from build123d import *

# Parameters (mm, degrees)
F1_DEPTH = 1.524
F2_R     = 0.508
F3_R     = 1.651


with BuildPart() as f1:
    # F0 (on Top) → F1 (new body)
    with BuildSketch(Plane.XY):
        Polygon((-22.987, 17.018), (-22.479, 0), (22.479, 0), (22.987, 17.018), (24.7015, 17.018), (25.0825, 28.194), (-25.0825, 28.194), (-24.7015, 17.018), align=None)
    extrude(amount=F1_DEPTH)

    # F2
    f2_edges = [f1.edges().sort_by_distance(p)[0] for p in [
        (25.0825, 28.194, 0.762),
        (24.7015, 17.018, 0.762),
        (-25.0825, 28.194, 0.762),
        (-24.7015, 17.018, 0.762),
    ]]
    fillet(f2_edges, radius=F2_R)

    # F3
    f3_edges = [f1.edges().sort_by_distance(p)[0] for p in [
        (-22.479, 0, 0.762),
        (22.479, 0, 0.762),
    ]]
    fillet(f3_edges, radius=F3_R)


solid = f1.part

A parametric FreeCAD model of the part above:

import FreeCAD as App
import Part
import Sketcher

V = App.Vector
Q = App.Units.Quantity


def edges_at(feature, points):
    """Names of the edges that pass closest to the given points."""
    edges = feature.Shape.Edges
    near = lambda p: min(range(len(edges)), key=lambda i: edges[i].distToShape(Part.Vertex(*p))[0])
    return sorted({f"Edge{near(p) + 1}" for p in points})


def add_polygon(sketch, points):
    """Adds a closed chain of lines whose ends are joined by coincident constraints."""
    first, n = sketch.GeometryCount, len(points)
    for a, b in zip(points, points[1:] + points[:1]):
        sketch.addGeometry(Part.LineSegment(App.Vector(*a, 0), App.Vector(*b, 0)), False)
    for i in range(n):
        sketch.addConstraint(Sketcher.Constraint("Coincident", first + i, 2, first + (i + 1) % n, 1))

doc = App.newDocument("Part")
params = doc.addObject("Spreadsheet::Sheet", "Params")
for row, (alias, value) in enumerate([
    ("sketch1_width", "1.77 in"),
    ("sketch1_width2", "1.975 in"),
    ("pad1_length", "0.06 in"),
    ("fillet_radius", "0.02 in"),
    ("fillet2_radius", "0.065 in"),
], start=1):
    params.set(f"A{row}", alias)
    params.set(f"B{row}", "=" + value)
    params.setAlias(f"B{row}", alias)

body = doc.addObject("PartDesign::Body", "Body")

# Sketch on XY plane
sketch1 = doc.addObject("Sketcher::SketchObject", "Sketch")
body.addObject(sketch1)
sketch1.AttachmentSupport = (doc.XY_Plane, [""])
sketch1.MapMode = "FlatFace"
add_polygon(sketch1, [(-23, 17), (-22.5, 0), (22.5, 0), (23, 17), (24.7, 17), (25.1, 28.2), (-25.1, 28.2), (-24.7, 17)])  # lines 0-7
sketch1.addConstraint([
    Sketcher.Constraint("Horizontal", 1),
    Sketcher.Constraint("Horizontal", 3),
    Sketcher.Constraint("Horizontal", 5),
    Sketcher.Constraint("Horizontal", 7),
    Sketcher.Constraint("Symmetric", 0, 2, 1, 2, -1, 1),
    Sketcher.Constraint("Symmetric", 3, 2, 6, 2, -2),
    Sketcher.Constraint("Equal", 3, 7),
    Sketcher.Constraint("Equal", 4, 6),
    Sketcher.Constraint("DistanceX", 1, 1, 1, 2, Q("1.77 in")),
    Sketcher.Constraint("DistanceX", 5, 2, 5, 1, Q("1.975 in")),
    Sketcher.Constraint("DistanceY", -1, 1, 2, 2, Q("0.67 in")),
    Sketcher.Constraint("DistanceY", -1, 1, 4, 2, Q("1.11 in")),
    Sketcher.Constraint("DistanceX", 1, 2, 2, 2, Q("0.02 in")),
    Sketcher.Constraint("DistanceX", 5, 2, 3, 2, Q("1.96 in")),
])
sketch1.setExpression("Constraints[16]", "Params.sketch1_width")
sketch1.setExpression("Constraints[17]", "Params.sketch1_width2")
pad1 = doc.addObject("PartDesign::Pad", "Pad")
body.addObject(pad1)
pad1.Profile = sketch1
pad1.setExpression("Length", "Params.pad1_length")
doc.recompute()

fillet = doc.addObject("PartDesign::Fillet", "Fillet")
body.addObject(fillet)
fillet.Base = (pad1, edges_at(pad1, [
    (25.082, 28.194, 0.762),
    (24.701, 17.018, 0.762),
    (-25.082, 28.194, 0.762),
    (-24.701, 17.018, 0.762),
]))
fillet.setExpression("Radius", "Params.fillet_radius")
doc.recompute()

fillet2 = doc.addObject("PartDesign::Fillet", "Fillet001")
body.addObject(fillet2)
fillet2.Base = (fillet, edges_at(fillet, [(-22.479, 0, 0.762), (22.479, 0, 0.762)]))
fillet2.setExpression("Radius", "Params.fillet2_radius")

doc.recompute()
